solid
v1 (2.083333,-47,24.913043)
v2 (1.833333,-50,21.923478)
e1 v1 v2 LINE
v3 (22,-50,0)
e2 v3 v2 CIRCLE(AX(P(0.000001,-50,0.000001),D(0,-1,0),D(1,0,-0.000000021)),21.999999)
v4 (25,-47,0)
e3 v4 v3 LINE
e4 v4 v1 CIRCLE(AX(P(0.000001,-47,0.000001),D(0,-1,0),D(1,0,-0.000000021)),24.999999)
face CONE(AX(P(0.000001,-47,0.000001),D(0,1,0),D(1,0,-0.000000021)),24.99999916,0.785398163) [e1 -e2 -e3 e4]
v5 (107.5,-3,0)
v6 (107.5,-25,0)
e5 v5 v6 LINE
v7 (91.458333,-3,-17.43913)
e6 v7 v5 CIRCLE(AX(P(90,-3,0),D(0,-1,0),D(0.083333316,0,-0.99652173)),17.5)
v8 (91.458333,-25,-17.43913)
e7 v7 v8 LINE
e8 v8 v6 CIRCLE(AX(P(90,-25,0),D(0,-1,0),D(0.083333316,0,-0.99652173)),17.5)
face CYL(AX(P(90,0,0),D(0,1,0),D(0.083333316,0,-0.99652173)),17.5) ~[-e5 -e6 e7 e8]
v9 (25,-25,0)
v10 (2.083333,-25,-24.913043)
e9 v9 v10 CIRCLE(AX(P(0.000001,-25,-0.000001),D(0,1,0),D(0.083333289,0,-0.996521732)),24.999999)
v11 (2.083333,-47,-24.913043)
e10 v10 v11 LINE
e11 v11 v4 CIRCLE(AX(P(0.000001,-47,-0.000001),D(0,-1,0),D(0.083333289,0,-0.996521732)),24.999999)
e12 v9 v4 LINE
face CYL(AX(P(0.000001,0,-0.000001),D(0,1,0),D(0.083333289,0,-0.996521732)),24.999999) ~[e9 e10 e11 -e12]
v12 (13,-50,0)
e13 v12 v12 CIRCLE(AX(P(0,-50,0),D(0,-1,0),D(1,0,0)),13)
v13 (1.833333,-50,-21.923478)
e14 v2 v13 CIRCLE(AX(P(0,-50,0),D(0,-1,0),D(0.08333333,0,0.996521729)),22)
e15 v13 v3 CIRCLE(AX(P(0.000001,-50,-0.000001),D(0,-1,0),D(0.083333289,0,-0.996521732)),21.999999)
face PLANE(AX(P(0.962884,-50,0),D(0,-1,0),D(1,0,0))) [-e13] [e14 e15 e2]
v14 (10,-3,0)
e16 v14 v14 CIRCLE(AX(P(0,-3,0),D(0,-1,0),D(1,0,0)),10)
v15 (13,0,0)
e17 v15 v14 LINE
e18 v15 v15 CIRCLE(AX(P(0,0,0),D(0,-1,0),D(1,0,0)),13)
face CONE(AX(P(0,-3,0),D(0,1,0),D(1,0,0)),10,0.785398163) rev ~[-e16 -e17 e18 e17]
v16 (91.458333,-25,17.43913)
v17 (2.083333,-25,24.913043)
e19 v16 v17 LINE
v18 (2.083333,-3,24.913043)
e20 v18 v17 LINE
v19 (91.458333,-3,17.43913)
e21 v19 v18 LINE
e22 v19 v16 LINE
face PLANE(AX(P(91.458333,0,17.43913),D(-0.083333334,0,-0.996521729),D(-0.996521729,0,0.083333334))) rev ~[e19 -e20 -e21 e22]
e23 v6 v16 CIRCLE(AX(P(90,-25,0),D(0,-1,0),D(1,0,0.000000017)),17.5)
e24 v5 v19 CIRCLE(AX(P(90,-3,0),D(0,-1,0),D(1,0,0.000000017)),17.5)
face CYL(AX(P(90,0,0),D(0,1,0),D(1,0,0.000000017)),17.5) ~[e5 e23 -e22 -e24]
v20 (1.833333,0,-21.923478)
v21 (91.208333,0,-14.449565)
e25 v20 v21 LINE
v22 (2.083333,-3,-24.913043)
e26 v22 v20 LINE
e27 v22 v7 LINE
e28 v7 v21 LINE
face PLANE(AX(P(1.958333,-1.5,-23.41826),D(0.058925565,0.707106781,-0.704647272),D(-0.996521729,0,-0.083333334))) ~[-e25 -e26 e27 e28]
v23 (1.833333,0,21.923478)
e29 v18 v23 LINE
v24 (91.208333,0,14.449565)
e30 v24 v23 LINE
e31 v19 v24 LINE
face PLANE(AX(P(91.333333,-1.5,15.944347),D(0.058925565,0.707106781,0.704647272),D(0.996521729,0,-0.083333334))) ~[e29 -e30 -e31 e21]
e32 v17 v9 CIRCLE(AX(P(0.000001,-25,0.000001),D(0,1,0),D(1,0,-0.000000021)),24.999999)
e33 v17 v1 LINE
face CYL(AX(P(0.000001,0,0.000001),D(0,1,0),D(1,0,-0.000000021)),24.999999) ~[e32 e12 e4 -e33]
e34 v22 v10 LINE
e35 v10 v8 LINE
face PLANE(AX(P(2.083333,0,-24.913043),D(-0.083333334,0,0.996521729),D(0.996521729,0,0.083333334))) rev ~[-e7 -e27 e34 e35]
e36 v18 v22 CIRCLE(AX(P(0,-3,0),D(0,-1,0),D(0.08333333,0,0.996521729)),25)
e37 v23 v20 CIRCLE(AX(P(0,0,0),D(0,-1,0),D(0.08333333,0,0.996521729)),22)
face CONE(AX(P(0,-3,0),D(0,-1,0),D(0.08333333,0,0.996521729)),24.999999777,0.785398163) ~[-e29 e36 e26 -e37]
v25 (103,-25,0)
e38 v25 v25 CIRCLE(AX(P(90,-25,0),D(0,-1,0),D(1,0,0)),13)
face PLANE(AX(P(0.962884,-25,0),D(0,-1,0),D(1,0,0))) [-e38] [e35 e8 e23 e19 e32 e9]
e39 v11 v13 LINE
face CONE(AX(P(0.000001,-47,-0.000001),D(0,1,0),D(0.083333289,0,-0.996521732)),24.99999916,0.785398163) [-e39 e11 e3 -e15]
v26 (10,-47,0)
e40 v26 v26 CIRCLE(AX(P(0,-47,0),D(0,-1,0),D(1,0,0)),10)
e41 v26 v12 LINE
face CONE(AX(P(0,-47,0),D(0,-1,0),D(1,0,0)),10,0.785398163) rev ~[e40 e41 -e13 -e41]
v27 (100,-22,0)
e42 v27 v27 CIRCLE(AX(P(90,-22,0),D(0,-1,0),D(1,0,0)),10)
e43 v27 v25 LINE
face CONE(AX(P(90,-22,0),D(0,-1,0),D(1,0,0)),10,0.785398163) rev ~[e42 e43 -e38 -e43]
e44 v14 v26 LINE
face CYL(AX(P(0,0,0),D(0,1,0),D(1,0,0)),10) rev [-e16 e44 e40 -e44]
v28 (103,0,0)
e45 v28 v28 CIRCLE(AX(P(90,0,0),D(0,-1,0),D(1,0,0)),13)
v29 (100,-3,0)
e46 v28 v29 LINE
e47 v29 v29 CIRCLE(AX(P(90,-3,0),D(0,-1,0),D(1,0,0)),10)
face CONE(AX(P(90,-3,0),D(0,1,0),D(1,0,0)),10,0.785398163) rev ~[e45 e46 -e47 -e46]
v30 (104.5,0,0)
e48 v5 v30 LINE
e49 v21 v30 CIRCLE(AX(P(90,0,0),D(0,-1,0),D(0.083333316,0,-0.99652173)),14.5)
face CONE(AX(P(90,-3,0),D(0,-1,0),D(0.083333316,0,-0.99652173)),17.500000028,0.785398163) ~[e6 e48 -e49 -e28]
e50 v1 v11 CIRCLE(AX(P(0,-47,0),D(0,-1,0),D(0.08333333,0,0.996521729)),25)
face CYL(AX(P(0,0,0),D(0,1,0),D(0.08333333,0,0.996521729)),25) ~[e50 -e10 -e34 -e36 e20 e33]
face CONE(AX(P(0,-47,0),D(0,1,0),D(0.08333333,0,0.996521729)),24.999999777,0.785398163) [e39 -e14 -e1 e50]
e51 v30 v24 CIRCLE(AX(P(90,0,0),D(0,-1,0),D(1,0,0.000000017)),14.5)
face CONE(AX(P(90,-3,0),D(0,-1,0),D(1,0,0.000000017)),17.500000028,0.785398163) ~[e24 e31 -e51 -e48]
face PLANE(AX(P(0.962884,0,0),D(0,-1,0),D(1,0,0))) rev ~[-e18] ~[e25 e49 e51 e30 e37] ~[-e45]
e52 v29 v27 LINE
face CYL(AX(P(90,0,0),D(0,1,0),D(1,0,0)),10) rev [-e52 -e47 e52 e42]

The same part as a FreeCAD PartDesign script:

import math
import FreeCAD as App
import Part
import Sketcher
from FreeCAD import Vector
Q = App.Units.Quantity


def edges_at(feature, points):
    """Names of the edges that pass closest to the given points."""
    edges = feature.Shape.Edges
    near = lambda p: min(range(len(edges)), key=lambda i: edges[i].distToShape(Part.Vertex(*p))[0])
    return sorted({f"Edge{near(p) + 1}" for p in points})

doc = App.newDocument("Part")
body = doc.addObject("PartDesign::Body", "Body")

# Sketch on XZ plane
sketch1 = doc.addObject("Sketcher::SketchObject", "Sketch")
body.addObject(sketch1)
sketch1.AttachmentSupport = (doc.XZ_Plane, [""])
sketch1.MapMode = "FlatFace"
sketch1.addGeometry([
    Part.ArcOfCircle(Part.Circle(Vector(0, 0, 0), Vector(0, 0, 1), 25), math.radians(85.219808), math.radians(274.780192)),  # 0
    Part.LineSegment(Vector(2.083333, -24.913043, 0), Vector(91.458333, -17.43913, 0)),  # 1
    Part.ArcOfCircle(Part.Circle(Vector(90, 0, 0), Vector(0, 0, 1), 17.5), math.radians(-85.219809), math.radians(-0.000001)),  # 2
    Part.ArcOfCircle(Part.Circle(Vector(90, 0, 0), Vector(0, 0, 1), 17.5), math.radians(0.000001), math.radians(85.219809)),  # 3
    Part.LineSegment(Vector(91.458333, 17.43913, 0), Vector(2.083333, 24.913043, 0)),  # 4
    Part.Circle(Vector(0, 0, 0), Vector(0, 0, 1), 10),  # 5
    Part.Circle(Vector(90, 0, 0), Vector(0, 0, 1), 10),  # 6
], False)
sketch1.addConstraint([
    Sketcher.Constraint("Tangent", 0, 2, 1, 1),
    Sketcher.Constraint("Tangent", 1, 2, 2, 1),
    Sketcher.Constraint("Tangent", 2, 2, 3, 1),
    Sketcher.Constraint("Tangent", 3, 2, 4, 1),
    Sketcher.Constraint("Tangent", 4, 2, 0, 1),
    Sketcher.Constraint("Coincident", 0, 3, -1, 1),
    Sketcher.Constraint("Coincident", 5, 3, -1, 1),
    Sketcher.Constraint("Coincident", 6, 3, 2, 3),
    Sketcher.Constraint("Equal", 2, 3),
    Sketcher.Constraint("Equal", 5, 6),
    Sketcher.Constraint("PointOnObject", 2, 3, -1),
    Sketcher.Constraint("PointOnObject", 2, 2, -1),
    Sketcher.Constraint("Diameter", 5, Q("20 mm")),
    Sketcher.Constraint("Radius", 0, Q("25 mm")),
    Sketcher.Constraint("Radius", 2, Q("17.5 mm")),
    Sketcher.Constraint("DistanceX", -1, 1, 2, 3, Q("90 mm")),
])
pad1 = doc.addObject("PartDesign::Pad", "Pad")
body.addObject(pad1)
pad1.Profile = sketch1
pad1.Length = 25

# Sketch on XZ plane
sketch2 = doc.addObject("Sketcher::SketchObject", "Sketch001")
body.addObject(sketch2)
sketch2.AttachmentSupport = (doc.XZ_Plane, [""])
sketch2.MapMode = "FlatFace"
sketch2.addGeometry([
    Part.ArcOfCircle(Part.Circle(Vector(0.000001, -0.000001, 0), Vector(0, 0, 1), 24.999999), math.radians(-85.219811), math.radians(0.000001)),
    Part.ArcOfCircle(Part.Circle(Vector(0.000001, 0.000001, 0), Vector(0, 0, 1), 24.999999), math.radians(-0.000001), math.radians(85.219811)),
    Part.ArcOfCircle(Part.Circle(Vector(0, 0, 0), Vector(0, 0, 1), 25), math.radians(85.219808), math.radians(274.780192)),
    Part.Circle(Vector(0, 0, 0), Vector(0, 0, 1), 10),
], False)
sketch2.addConstraint([
    Sketcher.Constraint("Tangent", 0, 2, 1, 1),
    Sketcher.Constraint("Tangent", 1, 2, 2, 1),
    Sketcher.Constraint("Tangent", 2, 2, 0, 1),
    Sketcher.Constraint("Coincident", 0, 3, -1, 1),
    Sketcher.Constraint("Coincident", 3, 3, -1, 1),
    Sketcher.Constraint("PointOnObject", 0, 2, -1),
    Sketcher.Constraint("Vertical", 1, 2, 2, 2),
    Sketcher.Constraint("Diameter", 3, Q("20 mm")),
    Sketcher.Constraint("Radius", 0, Q("24.999999 mm")),
    Sketcher.Constraint("DistanceX", -1, 1, 1, 2, Q("2.083333 mm")),
])
pad2 = doc.addObject("PartDesign::Pad", "Pad001")
body.addObject(pad2)
pad2.Profile = sketch2
pad2.Length = 50
doc.recompute()

chamfer = doc.addObject("PartDesign::Chamfer", "Chamfer")
body.addObject(chamfer)
chamfer.Base = (pad2, edges_at(pad2, [(-25, -50, 0), (-10, -50, 0), (80, -25, 0)]))
chamfer.Size = 3
doc.recompute()

chamfer2 = doc.addObject("PartDesign::Chamfer", "Chamfer001")
body.addObject(chamfer2)
chamfer2.Base = (chamfer, edges_at(chamfer, [
    (80, 0, 0),
    (-10, 0, 0),
    (-25, 0, 0),
    (46.771, 0, -21.176),
    (46.771, 0, 21.176),
    (102.88, 0, -11.848),
]))
chamfer2.Size = 3

doc.recompute()
